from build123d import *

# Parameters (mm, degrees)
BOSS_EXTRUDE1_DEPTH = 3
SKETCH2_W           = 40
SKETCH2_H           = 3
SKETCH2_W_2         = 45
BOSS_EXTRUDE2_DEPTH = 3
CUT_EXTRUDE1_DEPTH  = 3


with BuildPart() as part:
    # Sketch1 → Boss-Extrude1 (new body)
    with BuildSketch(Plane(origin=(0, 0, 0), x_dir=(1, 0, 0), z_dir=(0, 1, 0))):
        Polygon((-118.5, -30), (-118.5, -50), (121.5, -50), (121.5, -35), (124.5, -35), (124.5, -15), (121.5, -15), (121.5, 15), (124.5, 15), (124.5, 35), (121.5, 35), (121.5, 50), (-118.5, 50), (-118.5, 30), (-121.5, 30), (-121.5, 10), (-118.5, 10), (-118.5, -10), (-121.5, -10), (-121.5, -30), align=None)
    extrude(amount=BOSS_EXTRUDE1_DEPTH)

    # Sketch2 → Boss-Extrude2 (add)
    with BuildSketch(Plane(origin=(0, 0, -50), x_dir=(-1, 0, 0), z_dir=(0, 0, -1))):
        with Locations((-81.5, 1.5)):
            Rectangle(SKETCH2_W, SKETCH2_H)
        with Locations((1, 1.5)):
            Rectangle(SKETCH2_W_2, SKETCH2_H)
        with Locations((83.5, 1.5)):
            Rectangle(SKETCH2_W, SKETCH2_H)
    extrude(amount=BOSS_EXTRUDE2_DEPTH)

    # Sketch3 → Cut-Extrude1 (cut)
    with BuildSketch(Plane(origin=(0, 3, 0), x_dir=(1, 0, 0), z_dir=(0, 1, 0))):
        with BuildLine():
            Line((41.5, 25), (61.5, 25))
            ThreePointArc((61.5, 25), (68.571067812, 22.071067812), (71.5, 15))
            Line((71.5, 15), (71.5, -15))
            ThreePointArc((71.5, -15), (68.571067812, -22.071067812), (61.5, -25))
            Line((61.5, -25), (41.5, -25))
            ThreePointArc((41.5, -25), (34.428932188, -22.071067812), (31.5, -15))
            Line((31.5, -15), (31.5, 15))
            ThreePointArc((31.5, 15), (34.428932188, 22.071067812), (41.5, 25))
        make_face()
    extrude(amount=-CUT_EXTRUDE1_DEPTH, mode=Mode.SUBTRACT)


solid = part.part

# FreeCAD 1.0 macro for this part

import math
import FreeCAD as App
import Part
import Sketcher

V = App.Vector

doc = App.newDocument("Part")
body = doc.addObject("PartDesign::Body", "Body")

sketch1 = body.newObject("Sketcher::SketchObject", "Sketch")
sketch1.AttachmentSupport = (doc.getObject("XZ_Plane"), [""])
sketch1.MapMode = "FlatFace"
sketch1.addGeometry([
    Part.LineSegment(V(-118.5, 30, 0), V(-118.5, 50, 0)),
    Part.LineSegment(V(-118.5, 50, 0), V(121.5, 50, 0)),
    Part.LineSegment(V(121.5, 50, 0), V(121.5, 35, 0)),
    Part.LineSegment(V(121.5, 35, 0), V(124.5, 35, 0)),
    Part.LineSegment(V(124.5, 35, 0), V(124.5, 15, 0)),
    Part.LineSegment(V(124.5, 15, 0), V(121.5, 15, 0)),
    Part.LineSegment(V(121.5, 15, 0), V(121.5, -15, 0)),
    Part.LineSegment(V(121.5, -15, 0), V(124.5, -15, 0)),
    Part.LineSegment(V(124.5, -15, 0), V(124.5, -35, 0)),
    Part.LineSegment(V(124.5, -35, 0), V(121.5, -35, 0)),
    Part.LineSegment(V(121.5, -35, 0), V(121.5, -50, 0)),
    Part.LineSegment(V(121.5, -50, 0), V(-118.5, -50, 0)),
    Part.LineSegment(V(-118.5, -50, 0), V(-118.5, -30, 0)),
    Part.LineSegment(V(-118.5, -30, 0), V(-121.5, -30, 0)),
    Part.LineSegment(V(-121.5, -30, 0), V(-121.5, -10, 0)),
    Part.LineSegment(V(-121.5, -10, 0), V(-118.5, -10, 0)),
    Part.LineSegment(V(-118.5, -10, 0), V(-118.5, 10, 0)),
    Part.LineSegment(V(-118.5, 10, 0), V(-121.5, 10, 0)),
    Part.LineSegment(V(-121.5, 10, 0), V(-121.5, 30, 0)),
    Part.LineSegment(V(-121.5, 30, 0), V(-118.5, 30, 0)),
], False)
sketch1.addConstraint([
    Sketcher.Constraint("Coincident", 0, 2, 1, 1),
    Sketcher.Constraint("Coincident", 1, 2, 2, 1),
    Sketcher.Constraint("Coincident", 2, 2, 3, 1),
    Sketcher.Constraint("Coincident", 3, 2, 4, 1),
    Sketcher.Constraint("Coincident", 4, 2, 5, 1),
    Sketcher.Constraint("Coincident", 5, 2, 6, 1),
    Sketcher.Constraint("Coincident", 6, 2, 7, 1),
    Sketcher.Constraint("Coincident", 7, 2, 8, 1),
    Sketcher.Constraint("Coincident", 8, 2, 9, 1),
    Sketcher.Constraint("Coincident", 9, 2, 10, 1),
    Sketcher.Constraint("Coincident", 10, 2, 11, 1),
    Sketcher.Constraint("Coincident", 11, 2, 12, 1),
    Sketcher.Constraint("Coincident", 12, 2, 13, 1),
    Sketcher.Constraint("Coincident", 13, 2, 14, 1),
    Sketcher.Constraint("Coincident", 14, 2, 15, 1),
    Sketcher.Constraint("Coincident", 15, 2, 16, 1),
    Sketcher.Constraint("Coincident", 16, 2, 17, 1),
    Sketcher.Constraint("Coincident", 17, 2, 18, 1),
    Sketcher.Constraint("Coincident", 18, 2, 19, 1),
    Sketcher.Constraint("Coincident", 19, 2, 0, 1),
    Sketcher.Constraint("Vertical", 0),
    Sketcher.Constraint("Horizontal", 1),
    Sketcher.Constraint("Vertical", 2),
    Sketcher.Constraint("Horizontal", 3),
    Sketcher.Constraint("Vertical", 4),
    Sketcher.Constraint("Horizontal", 5),
    Sketcher.Constraint("Vertical", 6),
    Sketcher.Constraint("Horizontal", 7),
    Sketcher.Constraint("Vertical", 8),
    Sketcher.Constraint("Horizontal", 9),
    Sketcher.Constraint("Vertical", 10),
    Sketcher.Constraint("Horizontal", 11),
    Sketcher.Constraint("Vertical", 12),
    Sketcher.Constraint("Horizontal", 13),
    Sketcher.Constraint("Vertical", 14),
    Sketcher.Constraint("Horizontal", 15),
    Sketcher.Constraint("Vertical", 16),
    Sketcher.Constraint("Horizontal", 17),
    Sketcher.Constraint("Vertical", 18),
    Sketcher.Constraint("Horizontal", 19),
    Sketcher.Constraint("Symmetric", 4, 2, 7, 2, -1),
    Sketcher.Constraint("Symmetric", 2, 2, 9, 2, -1),
    Sketcher.Constraint("Symmetric", 0, 2, 11, 2, -1),
    Sketcher.Constraint("Symmetric", 14, 2, 17, 2, -1),
    Sketcher.Constraint("Vertical", 2, 2, 5, 2),
    Sketcher.Constraint("Vertical", 12, 2, 15, 2),
    Sketcher.Constraint("Equal", 9, 13),
    Sketcher.Constraint("Equal", 0, 4),
    Sketcher.Constraint("Equal", 8, 12),
    Sketcher.Constraint("Equal", 12, 14),
    Sketcher.Constraint("Equal", 14, 16),
    Sketcher.Constraint("DistanceX", 1, 1, 1, 2, 240.0),
    Sketcher.Constraint("DistanceX", 3, 1, 3, 2, 3.0),
    Sketcher.Constraint("DistanceY", 0, 1, 0, 2, 20.0),
    Sketcher.Constraint("DistanceY", 2, 2, 2, 1, 15.0),
    Sketcher.Constraint("DistanceX", 0, 2, -1, 1, 118.5),
])
pad1 = body.newObject("PartDesign::Pad", "Pad")
pad1.Profile = sketch1
pad1.Length = 3
pad1.Reversed = True

sketch2 = body.newObject("Sketcher::SketchObject", "Sketch001")
sketch2.AttachmentSupport = (doc.getObject("XY_Plane"), [""])
sketch2.MapMode = "FlatFace"
sketch2.AttachmentOffset = App.Placement(V(0, 0, -50), App.Rotation())
sketch2.addGeometry([
    Part.LineSegment(V(101.5, 3, 0), V(101.5, 0, 0)),
    Part.LineSegment(V(101.5, 0, 0), V(61.5, 0, 0)),
    Part.LineSegment(V(61.5, 0, 0), V(61.5, 3, 0)),
    Part.LineSegment(V(61.5, 3, 0), V(101.5, 3, 0)),
    Part.LineSegment(V(21.5, 3, 0), V(21.5, 0, 0)),
    Part.LineSegment(V(21.5, 0, 0), V(-23.5, 0, 0)),
    Part.LineSegment(V(-23.5, 0, 0), V(-23.5, 3, 0)),
    Part.LineSegment(V(-23.5, 3, 0), V(21.5, 3, 0)),
    Part.LineSegment(V(-63.5, 3, 0), V(-63.5, 0, 0)),
    Part.LineSegment(V(-63.5, 0, 0), V(-103.5, 0, 0)),
    Part.LineSegment(V(-103.5, 0, 0), V(-103.5, 3, 0)),
    Part.LineSegment(V(-103.5, 3, 0), V(-63.5, 3, 0)),
], False)
sketch2.addConstraint([
    Sketcher.Constraint("Coincident", 0, 2, 1, 1),
    Sketcher.Constraint("Coincident", 1, 2, 2, 1),
    Sketcher.Constraint("Coincident", 2, 2, 3, 1),
    Sketcher.Constraint("Coincident", 3, 2, 0, 1),
    Sketcher.Constraint("Coincident", 4, 2, 5, 1),
    Sketcher.Constraint("Coincident", 5, 2, 6, 1),
    Sketcher.Constraint("Coincident", 6, 2, 7, 1),
    Sketcher.Constraint("Coincident", 7, 2, 4, 1),
    Sketcher.Constraint("Coincident", 8, 2, 9, 1),
    Sketcher.Constraint("Coincident", 9, 2, 10, 1),
    Sketcher.Constraint("Coincident", 10, 2, 11, 1),
    Sketcher.Constraint("Coincident", 11, 2, 8, 1),
    Sketcher.Constraint("Vertical", 0),
    Sketcher.Constraint("Horizontal", 1),
    Sketcher.Constraint("Vertical", 2),
    Sketcher.Constraint("Horizontal", 3),
    Sketcher.Constraint("Vertical", 4),
    Sketcher.Constraint("Horizontal", 5),
    Sketcher.Constraint("Vertical", 6),
    Sketcher.Constraint("Horizontal", 7),
    Sketcher.Constraint("Vertical", 8),
    Sketcher.Constraint("Horizontal", 9),
    Sketcher.Constraint("Vertical", 10),
    Sketcher.Constraint("Horizontal", 11),
    Sketcher.Constraint("PointOnObject", 0, 2, -1),
    Sketcher.Constraint("PointOnObject", 4, 2, -1),
    Sketcher.Constraint("PointOnObject", 8, 2, -1),
    Sketcher.Constraint("Horizontal", 3, 2, 6, 2),
    Sketcher.Constraint("Horizontal", 7, 2, 10, 2),
    Sketcher.Constraint("Equal", 3, 9),
    Sketcher.Constraint("DistanceX", 1, 2, 1, 1, 40.0),
    Sketcher.Constraint("DistanceX", 5, 2, 5, 1, 45.0),
    Sketcher.Constraint("DistanceY", 0, 2, 0, 1, 3.0),
    Sketcher.Constraint("DistanceX", 4, 2, 1, 2, 40.0),
    Sketcher.Constraint("DistanceX", 8, 2, 5, 2, 40.0),
    Sketcher.Constraint("DistanceX", -1, 1, 0, 2, 101.5),
])
pad2 = body.newObject("PartDesign::Pad", "Pad001")
pad2.Profile = sketch2
pad2.Length = 3
pad2.Reversed = True

sketch3 = body.newObject("Sketcher::SketchObject", "Sketch002")
sketch3.AttachmentSupport = (doc.getObject("XZ_Plane"), [""])
sketch3.MapMode = "FlatFace"
sketch3.AttachmentOffset = App.Placement(V(0, 0, -3), App.Rotation())
sketch3.addGeometry([
    Part.LineSegment(V(62, -25, 0), V(42, -25, 0)),
    Part.ArcOfCircle(Part.Circle(V(42, -15, 0), V(0, 0, 1), 10), math.radians(180), math.radians(270)),
    Part.LineSegment(V(32, -15, 0), V(32, 15, 0)),
    Part.ArcOfCircle(Part.Circle(V(42, 15, 0), V(0, 0, 1), 10), math.radians(90), math.radians(180)),
    Part.LineSegment(V(42, 25, 0), V(62, 25, 0)),
    Part.ArcOfCircle(Part.Circle(V(62, 15, 0), V(0, 0, 1), 10), math.radians(0), math.radians(90)),
    Part.LineSegment(V(72, 15, 0), V(72, -15, 0)),
    Part.ArcOfCircle(Part.Circle(V(62, -15, 0), V(0, 0, 1), 10), math.radians(-90), math.radians(0)),
], False)
sketch3.addConstraint([
    Sketcher.Constraint("Tangent", 0, 2, 1, 2),
    Sketcher.Constraint("Tangent", 1, 1, 2, 1),
    Sketcher.Constraint("Tangent", 2, 2, 3, 2),
    Sketcher.Constraint("Tangent", 3, 1, 4, 1),
    Sketcher.Constraint("Tangent", 4, 2, 5, 2),
    Sketcher.Constraint("Tangent", 5, 1, 6, 1),
    Sketcher.Constraint("Tangent", 6, 2, 7, 2),
    Sketcher.Constraint("Tangent", 7, 1, 0, 1),
    Sketcher.Constraint("Horizontal", 0),
    Sketcher.Constraint("Vertical", 2),
    Sketcher.Constraint("Horizontal", 4),
    Sketcher.Constraint("Vertical", 6),
    Sketcher.Constraint("Equal", 1, 3),
    Sketcher.Constraint("Equal", 3, 5),
    Sketcher.Constraint("Equal", 5, 7),
    Sketcher.Constraint("Radius", 1, 10.0),
    Sketcher.Constraint("DistanceX", 0, 2, 0, 1, 20.0),
    Sketcher.Constraint("DistanceY", 2, 1, 2, 2, 30.0),
    Sketcher.Constraint("DistanceY", 1, 3, -1, 1, 15.0),
    Sketcher.Constraint("DistanceX", -1, 1, 1, 3, 41.5),
])
pocket1 = body.newObject("PartDesign::Pocket", "Pocket")
pocket1.Profile = sketch3
pocket1.Length = 3
pocket1.Reversed = True

doc.recompute()
